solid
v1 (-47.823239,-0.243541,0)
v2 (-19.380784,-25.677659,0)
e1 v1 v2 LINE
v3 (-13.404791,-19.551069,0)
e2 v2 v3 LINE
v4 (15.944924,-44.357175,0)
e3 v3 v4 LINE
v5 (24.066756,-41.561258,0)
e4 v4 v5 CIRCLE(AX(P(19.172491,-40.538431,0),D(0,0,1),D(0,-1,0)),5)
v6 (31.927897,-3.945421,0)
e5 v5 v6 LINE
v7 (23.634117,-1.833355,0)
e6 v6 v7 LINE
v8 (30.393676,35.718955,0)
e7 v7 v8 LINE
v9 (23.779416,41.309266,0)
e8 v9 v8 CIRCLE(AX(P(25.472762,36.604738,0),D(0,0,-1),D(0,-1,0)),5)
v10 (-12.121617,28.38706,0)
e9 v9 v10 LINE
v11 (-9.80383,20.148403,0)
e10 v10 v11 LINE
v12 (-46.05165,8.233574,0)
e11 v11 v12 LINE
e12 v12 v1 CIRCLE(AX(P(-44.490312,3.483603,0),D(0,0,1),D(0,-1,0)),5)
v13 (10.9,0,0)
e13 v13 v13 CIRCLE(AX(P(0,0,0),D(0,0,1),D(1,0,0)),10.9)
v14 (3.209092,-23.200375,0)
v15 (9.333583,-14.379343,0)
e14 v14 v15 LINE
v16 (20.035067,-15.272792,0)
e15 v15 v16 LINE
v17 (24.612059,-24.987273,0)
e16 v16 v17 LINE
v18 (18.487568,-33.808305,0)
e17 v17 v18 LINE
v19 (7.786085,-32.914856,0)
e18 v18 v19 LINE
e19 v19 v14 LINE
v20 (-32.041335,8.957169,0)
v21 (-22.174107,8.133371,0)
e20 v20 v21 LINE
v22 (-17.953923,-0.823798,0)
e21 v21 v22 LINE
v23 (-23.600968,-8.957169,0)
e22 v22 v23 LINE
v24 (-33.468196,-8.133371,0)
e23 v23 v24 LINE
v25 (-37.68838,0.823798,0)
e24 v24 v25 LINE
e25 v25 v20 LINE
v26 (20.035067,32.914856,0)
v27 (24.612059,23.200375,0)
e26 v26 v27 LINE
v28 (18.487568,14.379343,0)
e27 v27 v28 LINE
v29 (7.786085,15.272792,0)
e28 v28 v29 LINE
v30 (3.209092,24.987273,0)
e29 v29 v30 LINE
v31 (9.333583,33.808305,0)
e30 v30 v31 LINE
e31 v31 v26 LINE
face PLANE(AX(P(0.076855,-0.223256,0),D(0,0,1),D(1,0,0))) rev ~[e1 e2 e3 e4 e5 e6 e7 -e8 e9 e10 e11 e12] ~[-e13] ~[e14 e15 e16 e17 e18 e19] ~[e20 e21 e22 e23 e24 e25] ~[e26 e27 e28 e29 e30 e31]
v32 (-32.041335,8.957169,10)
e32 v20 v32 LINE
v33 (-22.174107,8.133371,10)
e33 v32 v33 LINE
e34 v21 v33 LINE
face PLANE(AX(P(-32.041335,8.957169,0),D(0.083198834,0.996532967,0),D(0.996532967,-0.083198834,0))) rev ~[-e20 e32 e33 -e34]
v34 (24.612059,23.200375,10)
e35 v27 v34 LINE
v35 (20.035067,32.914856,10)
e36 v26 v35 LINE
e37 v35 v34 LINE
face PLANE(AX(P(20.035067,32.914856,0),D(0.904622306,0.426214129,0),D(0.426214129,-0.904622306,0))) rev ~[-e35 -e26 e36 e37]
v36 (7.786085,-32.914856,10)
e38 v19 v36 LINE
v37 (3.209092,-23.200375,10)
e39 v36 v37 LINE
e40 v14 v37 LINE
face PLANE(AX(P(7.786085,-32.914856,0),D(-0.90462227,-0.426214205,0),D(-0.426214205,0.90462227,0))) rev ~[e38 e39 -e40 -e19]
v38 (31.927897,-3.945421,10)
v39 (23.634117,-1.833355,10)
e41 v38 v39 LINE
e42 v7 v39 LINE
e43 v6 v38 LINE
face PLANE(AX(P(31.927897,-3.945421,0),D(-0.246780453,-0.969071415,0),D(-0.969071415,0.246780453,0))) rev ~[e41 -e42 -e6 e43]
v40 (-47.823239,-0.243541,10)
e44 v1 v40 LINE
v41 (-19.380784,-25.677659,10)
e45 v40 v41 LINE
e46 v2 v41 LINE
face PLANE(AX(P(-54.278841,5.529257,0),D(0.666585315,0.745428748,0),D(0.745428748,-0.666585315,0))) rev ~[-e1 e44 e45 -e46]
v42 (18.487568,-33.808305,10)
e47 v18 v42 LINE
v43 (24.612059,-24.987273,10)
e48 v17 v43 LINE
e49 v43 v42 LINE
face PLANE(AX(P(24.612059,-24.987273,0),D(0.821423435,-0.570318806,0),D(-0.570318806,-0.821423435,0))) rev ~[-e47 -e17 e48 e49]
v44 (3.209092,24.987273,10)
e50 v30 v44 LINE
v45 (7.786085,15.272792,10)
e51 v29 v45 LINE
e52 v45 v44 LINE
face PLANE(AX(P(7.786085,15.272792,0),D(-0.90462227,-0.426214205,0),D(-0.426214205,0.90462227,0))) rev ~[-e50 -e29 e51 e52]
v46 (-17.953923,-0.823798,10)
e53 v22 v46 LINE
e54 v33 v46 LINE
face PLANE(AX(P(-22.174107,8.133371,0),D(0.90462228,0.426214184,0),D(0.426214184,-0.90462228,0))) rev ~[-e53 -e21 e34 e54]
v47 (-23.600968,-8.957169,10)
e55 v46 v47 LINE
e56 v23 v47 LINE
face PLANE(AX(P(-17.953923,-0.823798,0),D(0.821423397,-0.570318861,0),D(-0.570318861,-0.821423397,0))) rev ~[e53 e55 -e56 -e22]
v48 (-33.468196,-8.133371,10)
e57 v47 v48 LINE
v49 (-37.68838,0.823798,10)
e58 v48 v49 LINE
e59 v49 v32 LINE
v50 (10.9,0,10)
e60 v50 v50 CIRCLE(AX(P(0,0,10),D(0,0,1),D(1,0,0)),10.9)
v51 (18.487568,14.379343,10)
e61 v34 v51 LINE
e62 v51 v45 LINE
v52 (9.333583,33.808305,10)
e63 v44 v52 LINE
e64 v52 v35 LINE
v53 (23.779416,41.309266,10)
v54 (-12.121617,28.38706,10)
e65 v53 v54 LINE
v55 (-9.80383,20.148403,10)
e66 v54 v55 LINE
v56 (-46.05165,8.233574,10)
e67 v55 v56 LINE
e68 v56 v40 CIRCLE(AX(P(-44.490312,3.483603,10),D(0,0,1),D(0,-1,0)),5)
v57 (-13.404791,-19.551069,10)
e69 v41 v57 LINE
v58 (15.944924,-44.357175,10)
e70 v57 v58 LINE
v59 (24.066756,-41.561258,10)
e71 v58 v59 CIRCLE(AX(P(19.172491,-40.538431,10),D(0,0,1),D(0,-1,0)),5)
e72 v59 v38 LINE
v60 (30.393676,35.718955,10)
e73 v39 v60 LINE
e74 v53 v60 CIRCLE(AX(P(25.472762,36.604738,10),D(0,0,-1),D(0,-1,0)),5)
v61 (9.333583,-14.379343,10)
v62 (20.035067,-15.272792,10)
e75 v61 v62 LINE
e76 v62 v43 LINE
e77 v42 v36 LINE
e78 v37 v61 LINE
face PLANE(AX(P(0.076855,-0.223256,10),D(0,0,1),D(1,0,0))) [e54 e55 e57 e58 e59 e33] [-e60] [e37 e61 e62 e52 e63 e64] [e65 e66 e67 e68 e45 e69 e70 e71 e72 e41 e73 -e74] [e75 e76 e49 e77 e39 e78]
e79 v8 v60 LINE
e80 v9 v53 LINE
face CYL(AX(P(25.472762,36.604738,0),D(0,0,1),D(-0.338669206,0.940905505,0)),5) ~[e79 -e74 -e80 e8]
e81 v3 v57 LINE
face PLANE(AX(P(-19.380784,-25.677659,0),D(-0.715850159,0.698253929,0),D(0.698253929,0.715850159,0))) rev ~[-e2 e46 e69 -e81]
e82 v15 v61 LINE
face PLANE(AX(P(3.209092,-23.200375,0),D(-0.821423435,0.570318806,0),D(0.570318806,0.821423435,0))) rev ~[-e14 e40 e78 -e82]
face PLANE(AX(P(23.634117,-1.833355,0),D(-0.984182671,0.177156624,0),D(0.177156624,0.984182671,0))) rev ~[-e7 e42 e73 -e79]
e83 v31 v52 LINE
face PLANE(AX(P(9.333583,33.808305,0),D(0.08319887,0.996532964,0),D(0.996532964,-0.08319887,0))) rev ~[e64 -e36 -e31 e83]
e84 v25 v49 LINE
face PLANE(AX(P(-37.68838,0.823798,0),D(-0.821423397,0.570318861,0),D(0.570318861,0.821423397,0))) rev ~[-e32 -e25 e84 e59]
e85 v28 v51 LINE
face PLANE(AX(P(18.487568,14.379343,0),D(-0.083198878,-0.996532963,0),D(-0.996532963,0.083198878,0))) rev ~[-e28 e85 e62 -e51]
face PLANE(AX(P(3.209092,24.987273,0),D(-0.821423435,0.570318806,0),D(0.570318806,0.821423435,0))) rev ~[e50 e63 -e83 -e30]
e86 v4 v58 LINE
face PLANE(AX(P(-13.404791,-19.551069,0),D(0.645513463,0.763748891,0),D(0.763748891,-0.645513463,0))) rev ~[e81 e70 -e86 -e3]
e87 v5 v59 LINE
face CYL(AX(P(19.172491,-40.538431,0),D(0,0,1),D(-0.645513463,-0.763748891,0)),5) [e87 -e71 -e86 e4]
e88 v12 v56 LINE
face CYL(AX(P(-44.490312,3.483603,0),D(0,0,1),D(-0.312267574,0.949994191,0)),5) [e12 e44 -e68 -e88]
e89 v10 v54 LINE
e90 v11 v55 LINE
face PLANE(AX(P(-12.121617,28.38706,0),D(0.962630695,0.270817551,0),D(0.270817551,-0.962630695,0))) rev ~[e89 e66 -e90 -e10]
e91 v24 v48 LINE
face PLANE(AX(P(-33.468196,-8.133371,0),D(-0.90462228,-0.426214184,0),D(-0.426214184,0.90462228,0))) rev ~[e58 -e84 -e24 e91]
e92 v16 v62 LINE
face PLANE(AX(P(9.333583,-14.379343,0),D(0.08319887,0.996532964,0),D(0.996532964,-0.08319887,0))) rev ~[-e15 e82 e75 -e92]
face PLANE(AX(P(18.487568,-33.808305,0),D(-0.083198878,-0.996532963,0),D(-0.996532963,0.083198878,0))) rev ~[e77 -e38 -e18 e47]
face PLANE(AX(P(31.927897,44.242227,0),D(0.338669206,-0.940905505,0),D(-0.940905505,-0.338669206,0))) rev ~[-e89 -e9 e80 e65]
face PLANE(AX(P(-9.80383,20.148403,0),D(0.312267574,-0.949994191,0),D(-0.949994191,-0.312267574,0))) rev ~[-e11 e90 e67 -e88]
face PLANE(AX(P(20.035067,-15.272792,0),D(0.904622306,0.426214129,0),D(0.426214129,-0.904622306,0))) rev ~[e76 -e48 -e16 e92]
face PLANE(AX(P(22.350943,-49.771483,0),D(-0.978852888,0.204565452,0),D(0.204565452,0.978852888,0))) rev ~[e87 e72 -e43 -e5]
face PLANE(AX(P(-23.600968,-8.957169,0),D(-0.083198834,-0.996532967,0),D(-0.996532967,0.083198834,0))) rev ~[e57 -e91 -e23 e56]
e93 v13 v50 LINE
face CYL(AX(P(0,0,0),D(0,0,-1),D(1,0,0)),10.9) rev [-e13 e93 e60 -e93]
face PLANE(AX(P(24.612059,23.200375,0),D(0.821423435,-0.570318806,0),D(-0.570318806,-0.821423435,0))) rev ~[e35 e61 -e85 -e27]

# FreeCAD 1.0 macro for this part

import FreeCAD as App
import Part
import Sketcher

V = App.Vector


def edges_at(feature, points):
    """Names of the edges that pass closest to the given points."""
    edges = feature.Shape.Edges
    near = lambda p: min(range(len(edges)), key=lambda i: edges[i].distToShape(Part.Vertex(*p))[0])
    return sorted({f"Edge{near(p) + 1}" for p in points})

doc = App.newDocument("Part")
params = doc.addObject("Spreadsheet::Sheet", "Params")
for row, (alias, value) in enumerate([
    ("sketch1_diameter", "21.8 mm"),
    ("pad1_length", "10 mm"),
    ("fillet_radius", "5 mm"),
], start=1):
    params.set(f"A{row}", alias)
    params.set(f"B{row}", "=" + value)
    params.setAlias(f"B{row}", alias)

body = doc.addObject("PartDesign::Body", "Body")

# Sketch on XY plane
sketch1 = doc.addObject("Sketcher::SketchObject", "Sketch")
body.addObject(sketch1)
sketch1.AttachmentSupport = (doc.XY_Plane, [""])
sketch1.MapMode = "FlatFace"
sketch1.addGeometry(Part.LineSegment(V(-10, 20, 0), V(-54, 6, 0)), False)
sketch1.addGeometry(Part.LineSegment(V(-54, 6, 0), V(-19, -26, 0)), False)
sketch1.addGeometry(Part.LineSegment(V(-19, -26, 0), V(-13, -20, 0)), False)
sketch1.addGeometry(Part.LineSegment(V(-13, -20, 0), V(22, -50, 0)), False)
sketch1.addGeometry(Part.LineSegment(V(22, -50, 0), V(32, -4, 0)), False)
sketch1.addGeometry(Part.LineSegment(V(32, -4, 0), V(24, -2, 0)), False)
sketch1.addGeometry(Part.LineSegment(V(24, -2, 0), V(32, 44, 0)), False)
sketch1.addGeometry(Part.LineSegment(V(32, 44, 0), V(-12, 28, 0)), False)
sketch1.addGeometry(Part.LineSegment(V(-12, 28, 0), V(-10, 20, 0)), False)
sketch1.addGeometry(Part.LineSegment(V(20, -15, 0), V(25, -25, 0)), False)
sketch1.addGeometry(Part.LineSegment(V(25, -25, 0), V(18, -34, 0)), False)
sketch1.addGeometry(Part.LineSegment(V(18, -34, 0), V(8, -33, 0)), False)
sketch1.addGeometry(Part.LineSegment(V(8, -33, 0), V(3, -23, 0)), False)
sketch1.addGeometry(Part.LineSegment(V(3, -23, 0), V(9, -14, 0)), False)
sketch1.addGeometry(Part.LineSegment(V(9, -14, 0), V(20, -15, 0)), False)
sketch1.addGeometry(Part.LineSegment(V(-24, -9, 0), V(-33, -8, 0)), False)
sketch1.addGeometry(Part.LineSegment(V(-33, -8, 0), V(-38, 1, 0)), False)
sketch1.addGeometry(Part.LineSegment(V(-38, 1, 0), V(-32, 9, 0)), False)
sketch1.addGeometry(Part.LineSegment(V(-32, 9, 0), V(-22, 8, 0)), False)
sketch1.addGeometry(Part.LineSegment(V(-22, 8, 0), V(-18, -1, 0)), False)
sketch1.addGeometry(Part.LineSegment(V(-18, -1, 0), V(-24, -9, 0)), False)
sketch1.addGeometry(Part.Circle(V(0, 0, 0), V(0, 0, 1), 11), False)
sketch1.addGeometry(Part.LineSegment(V(3, 25, 0), V(9, 34, 0)), False)
sketch1.addGeometry(Part.LineSegment(V(9, 34, 0), V(20, 33, 0)), False)
sketch1.addGeometry(Part.LineSegment(V(20, 33, 0), V(25, 23, 0)), False)
sketch1.addGeometry(Part.LineSegment(V(25, 23, 0), V(18, 14, 0)), False)
sketch1.addGeometry(Part.LineSegment(V(18, 14, 0), V(8, 15, 0)), False)
sketch1.addGeometry(Part.LineSegment(V(8, 15, 0), V(3, 25, 0)), False)
sketch1.addConstraint(Sketcher.Constraint("Coincident", 0, 2, 1, 1))
sketch1.addConstraint(Sketcher.Constraint("Coincident", 1, 2, 2, 1))
sketch1.addConstraint(Sketcher.Constraint("Coincident", 2, 2, 3, 1))
sketch1.addConstraint(Sketcher.Constraint("Coincident", 3, 2, 4, 1))
sketch1.addConstraint(Sketcher.Constraint("Coincident", 4, 2, 5, 1))
sketch1.addConstraint(Sketcher.Constraint("Coincident", 5, 2, 6, 1))
sketch1.addConstraint(Sketcher.Constraint("Coincident", 6, 2, 7, 1))
sketch1.addConstraint(Sketcher.Constraint("Coincident", 7, 2, 8, 1))
sketch1.addConstraint(Sketcher.Constraint("Coincident", 8, 2, 0, 1))
sketch1.addConstraint(Sketcher.Constraint("Coincident", 9, 2, 10, 1))
sketch1.addConstraint(Sketcher.Constraint("Coincident", 10, 2, 11, 1))
sketch1.addConstraint(Sketcher.Constraint("Coincident", 11, 2, 12, 1))
sketch1.addConstraint(Sketcher.Constraint("Coincident", 12, 2, 13, 1))
sketch1.addConstraint(Sketcher.Constraint("Coincident", 13, 2, 14, 1))
sketch1.addConstraint(Sketcher.Constraint("Coincident", 14, 2, 9, 1))
sketch1.addConstraint(Sketcher.Constraint("Coincident", 15, 2, 16, 1))
sketch1.addConstraint(Sketcher.Constraint("Coincident", 16, 2, 17, 1))
sketch1.addConstraint(Sketcher.Constraint("Coincident", 17, 2, 18, 1))
sketch1.addConstraint(Sketcher.Constraint("Coincident", 18, 2, 19, 1))
sketch1.addConstraint(Sketcher.Constraint("Coincident", 19, 2, 20, 1))
sketch1.addConstraint(Sketcher.Constraint("Coincident", 20, 2, 15, 1))
sketch1.addConstraint(Sketcher.Constraint("Coincident", 22, 2, 23, 1))
sketch1.addConstraint(Sketcher.Constraint("Coincident", 23, 2, 24, 1))
sketch1.addConstraint(Sketcher.Constraint("Coincident", 24, 2, 25, 1))
sketch1.addConstraint(Sketcher.Constraint("Coincident", 25, 2, 26, 1))
sketch1.addConstraint(Sketcher.Constraint("Coincident", 26, 2, 27, 1))
sketch1.addConstraint(Sketcher.Constraint("Coincident", 27, 2, 22, 1))
sketch1.addConstraint(Sketcher.Constraint("Coincident", 21, 3, -1, 1))
sketch1.addConstraint(Sketcher.Constraint("Parallel", 9, 12))
sketch1.addConstraint(Sketcher.Constraint("Parallel", 10, 13))
sketch1.addConstraint(Sketcher.Constraint("Parallel", 11, 14))
sketch1.addConstraint(Sketcher.Constraint("Parallel", 14, 15))
sketch1.addConstraint(Sketcher.Constraint("Parallel", 12, 16))
sketch1.addConstraint(Sketcher.Constraint("Parallel", 13, 17))
sketch1.addConstraint(Sketcher.Constraint("Parallel", 15, 18))
sketch1.addConstraint(Sketcher.Constraint("Parallel", 16, 19))
sketch1.addConstraint(Sketcher.Constraint("Parallel", 17, 20))
sketch1.addConstraint(Sketcher.Constraint("Parallel", 20, 22))
sketch1.addConstraint(Sketcher.Constraint("Parallel", 18, 23))
sketch1.addConstraint(Sketcher.Constraint("Parallel", 19, 24))
sketch1.addConstraint(Sketcher.Constraint("Parallel", 22, 25))
sketch1.addConstraint(Sketcher.Constraint("Parallel", 23, 26))
sketch1.addConstraint(Sketcher.Constraint("Parallel", 24, 27))
sketch1.addConstraint(Sketcher.Constraint("Vertical", 4, 2, 6, 2))
sketch1.addConstraint(Sketcher.Constraint("Vertical", 13, 2, 22, 2))
sketch1.addConstraint(Sketcher.Constraint("Vertical", 14, 2, 23, 2))
sketch1.addConstraint(Sketcher.Constraint("Vertical", 9, 2, 24, 2))
sketch1.addConstraint(Sketcher.Constraint("Vertical", 10, 2, 25, 2))
sketch1.addConstraint(Sketcher.Constraint("Vertical", 11, 2, 26, 2))
sketch1.addConstraint(Sketcher.Constraint("Equal", 0, 1))
sketch1.addConstraint(Sketcher.Constraint("Equal", 1, 3))
sketch1.addConstraint(Sketcher.Constraint("Equal", 3, 4))
sketch1.addConstraint(Sketcher.Constraint("Equal", 2, 5))
sketch1.addConstraint(Sketcher.Constraint("Equal", 4, 6))
sketch1.addConstraint(Sketcher.Constraint("Equal", 6, 7))
sketch1.addConstraint(Sketcher.Constraint("Equal", 5, 8))
sketch1.addConstraint(Sketcher.Constraint("Equal", 9, 10))
sketch1.addConstraint(Sketcher.Constraint("Equal", 10, 11))
sketch1.addConstraint(Sketcher.Constraint("Equal", 11, 12))
sketch1.addConstraint(Sketcher.Constraint("Equal", 15, 16))
sketch1.addConstraint(Sketcher.Constraint("Equal", 16, 17))
sketch1.addConstraint(Sketcher.Constraint("Equal", 17, 18))
sketch1.addConstraint(Sketcher.Constraint("Diameter", 21, 21.8))
sketch1.addConstraint(Sketcher.Constraint("DistanceY", -1, 1, 16, 2, 0.823798))
sketch1.addConstraint(Sketcher.Constraint("DistanceY", 19, 2, -1, 1, 0.823798))
sketch1.addConstraint(Sketcher.Constraint("DistanceX", 1, 2, 5, 2, 43.014901))
sketch1.addConstraint(Sketcher.Constraint("DistanceX", 11, 2, 13, 2, 1.547498))
sketch1.addConstraint(Sketcher.Constraint("DistanceY", 18, 2, 17, 2, 0.823798))
sketch1.addConstraint(Sketcher.Constraint("DistanceY", 2, 2, 20, 2, 10.5939))
sketch1.addConstraint(Sketcher.Constraint("DistanceX", 7, 2, 22, 2, 21.4552))
sketch1.addConstraint(Sketcher.Constraint("DistanceY", 8, 2, 22, 2, 13.659902))
sketch1.addConstraint(Sketcher.Constraint("Distance", 2, 8.558481))
sketch1.addConstraint(Sketcher.Constraint("DistanceX", 0, 2, -1, 1, 54.278841))
sketch1.addConstraint(Sketcher.Constraint("DistanceY", 1, 2, -1, 1, 25.677659))
sketch1.addConstraint(Sketcher.Constraint("DistanceX", 2, 2, -1, 1, 13.404791))
sketch1.addConstraint(Sketcher.Constraint("DistanceY", 2, 2, -1, 1, 19.551069))
sketch1.addConstraint(Sketcher.Constraint("DistanceY", 4, 2, -1, 1, 3.945421))
sketch1.addConstraint(Sketcher.Constraint("DistanceY", -1, 1, 7, 2, 28.38706))
sketch1.addConstraint(Sketcher.Constraint("DistanceX", 8, 2, -1, 1, 9.80383))
sketch1.addConstraint(Sketcher.Constraint("DistanceX", -1, 1, 9, 2, 24.612059))
sketch1.addConstraint(Sketcher.Constraint("DistanceX", -1, 1, 12, 2, 3.209092))
sketch1.addConstraint(Sketcher.Constraint("DistanceX", 16, 2, -1, 1, 37.68838))
sketch1.addConstraint(Sketcher.Constraint("DistanceY", 9, 2, 4, 2, 21.041852))
sketch1.setExpression("Constraints[62]", "Params.sketch1_diameter")
pad1 = doc.addObject("PartDesign::Pad", "Pad")
body.addObject(pad1)
pad1.Profile = sketch1
pad1.setExpression("Length", "Params.pad1_length")
doc.recompute()

fillet = doc.addObject("PartDesign::Fillet", "Fillet")
body.addObject(fillet)
fillet.Base = (pad1, edges_at(pad1, [(22.351, -49.771, 5), (31.928, 44.242, 5), (-54.279, 5.529, 5)]))
fillet.setExpression("Radius", "Params.fillet_radius")

doc.recompute()
